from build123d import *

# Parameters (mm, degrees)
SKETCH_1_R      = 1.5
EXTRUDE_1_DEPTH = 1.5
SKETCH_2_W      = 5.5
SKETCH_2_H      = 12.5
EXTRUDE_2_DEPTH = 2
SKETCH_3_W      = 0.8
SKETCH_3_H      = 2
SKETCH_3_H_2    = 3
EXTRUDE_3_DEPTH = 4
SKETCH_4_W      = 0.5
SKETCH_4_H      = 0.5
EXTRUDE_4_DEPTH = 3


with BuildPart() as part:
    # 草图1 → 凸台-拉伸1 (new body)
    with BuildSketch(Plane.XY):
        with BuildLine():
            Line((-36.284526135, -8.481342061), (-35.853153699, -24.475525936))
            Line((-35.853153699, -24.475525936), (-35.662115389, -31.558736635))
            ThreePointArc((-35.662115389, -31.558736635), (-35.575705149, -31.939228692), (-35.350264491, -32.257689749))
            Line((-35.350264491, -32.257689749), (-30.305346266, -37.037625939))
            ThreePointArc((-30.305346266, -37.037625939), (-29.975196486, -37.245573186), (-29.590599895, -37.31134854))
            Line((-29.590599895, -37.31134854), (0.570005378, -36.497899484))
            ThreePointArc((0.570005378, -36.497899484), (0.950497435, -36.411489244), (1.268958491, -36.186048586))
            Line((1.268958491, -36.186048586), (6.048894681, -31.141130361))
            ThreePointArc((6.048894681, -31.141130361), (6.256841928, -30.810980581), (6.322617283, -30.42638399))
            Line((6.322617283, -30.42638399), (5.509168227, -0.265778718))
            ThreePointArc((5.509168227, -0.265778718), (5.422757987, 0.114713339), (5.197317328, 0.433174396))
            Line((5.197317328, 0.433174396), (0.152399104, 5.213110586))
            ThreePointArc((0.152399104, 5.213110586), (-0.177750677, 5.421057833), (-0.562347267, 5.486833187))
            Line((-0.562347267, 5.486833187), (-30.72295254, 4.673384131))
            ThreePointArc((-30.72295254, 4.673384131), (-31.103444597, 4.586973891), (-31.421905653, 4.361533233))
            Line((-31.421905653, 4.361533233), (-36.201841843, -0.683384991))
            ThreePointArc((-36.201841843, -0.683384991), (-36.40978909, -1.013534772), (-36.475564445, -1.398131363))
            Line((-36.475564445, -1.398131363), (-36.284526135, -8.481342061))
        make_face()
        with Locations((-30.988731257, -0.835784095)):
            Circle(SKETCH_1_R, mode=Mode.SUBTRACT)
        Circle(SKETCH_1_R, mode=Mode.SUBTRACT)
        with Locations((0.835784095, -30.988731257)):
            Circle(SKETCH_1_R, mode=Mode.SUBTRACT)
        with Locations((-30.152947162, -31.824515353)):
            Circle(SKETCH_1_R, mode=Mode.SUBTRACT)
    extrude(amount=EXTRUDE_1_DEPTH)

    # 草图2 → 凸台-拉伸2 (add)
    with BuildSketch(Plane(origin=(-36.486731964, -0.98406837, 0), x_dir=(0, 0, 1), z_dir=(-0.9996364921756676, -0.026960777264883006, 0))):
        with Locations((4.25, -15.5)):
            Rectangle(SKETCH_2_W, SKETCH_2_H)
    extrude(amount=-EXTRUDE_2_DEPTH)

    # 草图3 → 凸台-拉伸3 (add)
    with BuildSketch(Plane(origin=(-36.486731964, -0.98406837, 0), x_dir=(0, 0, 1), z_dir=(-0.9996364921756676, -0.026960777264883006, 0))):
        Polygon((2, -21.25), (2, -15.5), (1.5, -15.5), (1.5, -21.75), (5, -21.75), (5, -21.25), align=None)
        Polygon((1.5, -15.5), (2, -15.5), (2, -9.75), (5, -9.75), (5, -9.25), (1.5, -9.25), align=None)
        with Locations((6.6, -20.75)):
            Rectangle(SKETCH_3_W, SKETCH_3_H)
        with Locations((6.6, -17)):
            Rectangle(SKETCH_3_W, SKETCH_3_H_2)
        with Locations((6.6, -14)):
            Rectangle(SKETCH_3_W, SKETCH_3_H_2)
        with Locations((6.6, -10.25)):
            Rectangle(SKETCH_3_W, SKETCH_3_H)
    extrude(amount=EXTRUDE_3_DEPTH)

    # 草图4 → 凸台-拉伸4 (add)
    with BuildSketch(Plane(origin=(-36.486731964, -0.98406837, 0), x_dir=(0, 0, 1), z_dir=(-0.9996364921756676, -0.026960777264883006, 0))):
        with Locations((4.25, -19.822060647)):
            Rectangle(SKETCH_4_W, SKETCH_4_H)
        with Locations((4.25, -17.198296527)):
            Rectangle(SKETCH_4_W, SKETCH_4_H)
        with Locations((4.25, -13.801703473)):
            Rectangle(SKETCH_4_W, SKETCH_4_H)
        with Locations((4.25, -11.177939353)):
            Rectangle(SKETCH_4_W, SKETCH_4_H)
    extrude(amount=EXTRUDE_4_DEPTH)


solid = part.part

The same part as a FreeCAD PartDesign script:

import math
import FreeCAD as App
import Part
import Sketcher


def add_polygon(sketch, points):
    """Adds a closed chain of lines whose ends are joined by coincident constraints."""
    first, n = sketch.GeometryCount, len(points)
    for a, b in zip(points, points[1:] + points[:1]):
        sketch.addGeometry(Part.LineSegment(App.Vector(*a, 0), App.Vector(*b, 0)), False)
    for i in range(n):
        sketch.addConstraint(Sketcher.Constraint("Coincident", first + i, 2, first + (i + 1) % n, 1))

doc = App.newDocument("Part")
body = doc.addObject("PartDesign::Body", "Body")

# Sketch on XY plane
sketch1 = body.newObject("Sketcher::SketchObject", "Sketch")
sketch1.AttachmentSupport = (doc.getObject("XY_Plane"), [""])
sketch1.MapMode = "FlatFace"
sketch1.addGeometry(Part.LineSegment(App.Vector(-36.3, -8.5, 0), App.Vector(-35.9, -24.5, 0)), False)
sketch1.addGeometry(Part.LineSegment(App.Vector(-35.9, -24.5, 0), App.Vector(-35.7, -31.6, 0)), False)
sketch1.addGeometry(Part.ArcOfCircle(Part.Circle(App.Vector(-34.7, -31.5, 0), App.Vector(0, 0, 1), 1), math.radians(-178), math.radians(-133)), False)
sketch1.addGeometry(Part.LineSegment(App.Vector(-35.4, -32.3, 0), App.Vector(-30.3, -37, 0)), False)
sketch1.addGeometry(Part.ArcOfCircle(Part.Circle(App.Vector(-29.6, -36.3, 0), App.Vector(0, 0, 1), 1), math.radians(-133), math.radians(-88)), False)
sketch1.addGeometry(Part.LineSegment(App.Vector(-29.6, -37.3, 0), App.Vector(0.6, -36.5, 0)), False)
sketch1.addGeometry(Part.ArcOfCircle(Part.Circle(App.Vector(0.5, -35.5, 0), App.Vector(0, 0, 1), 1), math.radians(-88), math.radians(-43)), False)
sketch1.addGeometry(Part.LineSegment(App.Vector(1.3, -36.2, 0), App.Vector(6, -31.1, 0)), False)
sketch1.addGeometry(Part.ArcOfCircle(Part.Circle(App.Vector(5.3, -30.5, 0), App.Vector(0, 0, 1), 1), math.radians(-43), math.radians(2)), False)
sketch1.addGeometry(Part.LineSegment(App.Vector(6.3, -30.4, 0), App.Vector(5.5, -0.3, 0)), False)
sketch1.addGeometry(Part.ArcOfCircle(Part.Circle(App.Vector(4.5, -0.3, 0), App.Vector(0, 0, 1), 1), math.radians(2), math.radians(47)), False)
sketch1.addGeometry(Part.LineSegment(App.Vector(5.2, 0.4, 0), App.Vector(0.2, 5.2, 0)), False)
sketch1.addGeometry(Part.ArcOfCircle(Part.Circle(App.Vector(-0.5, 4.5, 0), App.Vector(0, 0, 1), 1), math.radians(47), math.radians(92)), False)
sketch1.addGeometry(Part.LineSegment(App.Vector(-0.6, 5.5, 0), App.Vector(-30.7, 4.7, 0)), False)
sketch1.addGeometry(Part.ArcOfCircle(Part.Circle(App.Vector(-30.7, 3.7, 0), App.Vector(0, 0, 1), 1), math.radians(92), math.radians(137)), False)
sketch1.addGeometry(Part.LineSegment(App.Vector(-31.4, 4.4, 0), App.Vector(-36.2, -0.7, 0)), False)
sketch1.addGeometry(Part.ArcOfCircle(Part.Circle(App.Vector(-35.5, -1.4, 0), App.Vector(0, 0, 1), 1), math.radians(137), math.radians(182)), False)
sketch1.addGeometry(Part.LineSegment(App.Vector(-36.5, -1.4, 0), App.Vector(-36.3, -8.5, 0)), False)
sketch1.addGeometry(Part.Circle(App.Vector(-30.2, -31.8, 0), App.Vector(0, 0, 1), 1.5), False)
sketch1.addGeometry(Part.Circle(App.Vector(0.8, -31, 0), App.Vector(0, 0, 1), 1.5), False)
sketch1.addGeometry(Part.Circle(App.Vector(-31, -0.8, 0), App.Vector(0, 0, 1), 1.5), False)
sketch1.addGeometry(Part.Circle(App.Vector(0, 0, 0), App.Vector(0, 0, 1), 1.5), False)
sketch1.addConstraint(Sketcher.Constraint("Coincident", 0, 2, 1, 1))
sketch1.addConstraint(Sketcher.Constraint("Tangent", 1, 2, 2, 1))
sketch1.addConstraint(Sketcher.Constraint("Tangent", 2, 2, 3, 1))
sketch1.addConstraint(Sketcher.Constraint("Tangent", 3, 2, 4, 1))
sketch1.addConstraint(Sketcher.Constraint("Tangent", 4, 2, 5, 1))
sketch1.addConstraint(Sketcher.Constraint("Tangent", 5, 2, 6, 1))
sketch1.addConstraint(Sketcher.Constraint("Tangent", 6, 2, 7, 1))
sketch1.addConstraint(Sketcher.Constraint("Tangent", 7, 2, 8, 1))
sketch1.addConstraint(Sketcher.Constraint("Tangent", 8, 2, 9, 1))
sketch1.addConstraint(Sketcher.Constraint("Tangent", 9, 2, 10, 1))
sketch1.addConstraint(Sketcher.Constraint("Tangent", 10, 2, 11, 1))
sketch1.addConstraint(Sketcher.Constraint("Tangent", 11, 2, 12, 1))
sketch1.addConstraint(Sketcher.Constraint("Tangent", 12, 2, 13, 1))
sketch1.addConstraint(Sketcher.Constraint("Tangent", 13, 2, 14, 1))
sketch1.addConstraint(Sketcher.Constraint("Tangent", 14, 2, 15, 1))
sketch1.addConstraint(Sketcher.Constraint("Tangent", 15, 2, 16, 1))
sketch1.addConstraint(Sketcher.Constraint("Tangent", 16, 2, 17, 1))
sketch1.addConstraint(Sketcher.Constraint("Coincident", 17, 2, 0, 1))
sketch1.addConstraint(Sketcher.Constraint("Coincident", 21, 3, -1, 1))
sketch1.addConstraint(Sketcher.Constraint("Equal", 2, 4))
sketch1.addConstraint(Sketcher.Constraint("Equal", 4, 6))
sketch1.addConstraint(Sketcher.Constraint("Equal", 6, 8))
sketch1.addConstraint(Sketcher.Constraint("Equal", 8, 10))
sketch1.addConstraint(Sketcher.Constraint("Equal", 10, 12))
sketch1.addConstraint(Sketcher.Constraint("Equal", 12, 14))
sketch1.addConstraint(Sketcher.Constraint("Equal", 14, 16))
sketch1.addConstraint(Sketcher.Constraint("Equal", 18, 19))
sketch1.addConstraint(Sketcher.Constraint("Equal", 19, 20))
sketch1.addConstraint(Sketcher.Constraint("Equal", 20, 21))
sketch1.addConstraint(Sketcher.Constraint("Parallel", 0, 1))
sketch1.addConstraint(Sketcher.Constraint("Perpendicular", 1, 5))
sketch1.addConstraint(Sketcher.Constraint("Perpendicular", 3, 7))
sketch1.addConstraint(Sketcher.Constraint("Perpendicular", 5, 9))
sketch1.addConstraint(Sketcher.Constraint("Perpendicular", 7, 11))
sketch1.addConstraint(Sketcher.Constraint("Perpendicular", 9, 13))
sketch1.addConstraint(Sketcher.Constraint("Perpendicular", 11, 15))
sketch1.addConstraint(Sketcher.Constraint("Perpendicular", 13, 17))
sketch1.addConstraint(Sketcher.Constraint("Equal", 3, 7))
sketch1.addConstraint(Sketcher.Constraint("Equal", 5, 9))
sketch1.addConstraint(Sketcher.Constraint("Equal", 7, 11))
sketch1.addConstraint(Sketcher.Constraint("Equal", 9, 13))
sketch1.addConstraint(Sketcher.Constraint("Equal", 1, 17))
sketch1.addConstraint(Sketcher.Constraint("Diameter", 18, 3.0))
sketch1.addConstraint(Sketcher.Constraint("Radius", 2, 1.0))
sketch1.addConstraint(Sketcher.Constraint("Distance", 0, 16.0))
sketch1.addConstraint(Sketcher.Constraint("DistanceX", 4, 2, -1, 1, 29.5906))
sketch1.addConstraint(Sketcher.Constraint("DistanceY", 5, 2, -1, 1, 36.497899))
sketch1.addConstraint(Sketcher.Constraint("DistanceX", -1, 1, 11, 2, 0.152399))
sketch1.addConstraint(Sketcher.Constraint("DistanceX", 3, 2, 18, 3, 0.152399))
sketch1.addConstraint(Sketcher.Constraint("DistanceY", 4, 2, 6, 2, 1.1253))
sketch1.addConstraint(Sketcher.Constraint("DistanceY", 7, 2, 19, 3, 0.152399))
sketch1.addConstraint(Sketcher.Constraint("DistanceX", 0, 2, 13, 2, 5.130201))
sketch1.addConstraint(Sketcher.Constraint("DistanceY", 20, 3, 15, 2, 0.152399))
sketch1.addConstraint(Sketcher.Constraint("DistanceX", 2, 3, -1, 1, 34.662479))
sketch1.addConstraint(Sketcher.Constraint("DistanceX", 20, 3, -1, 1, 30.988731))
sketch1.addConstraint(Sketcher.Constraint("DistanceY", 18, 3, 2, 3, 0.292739))
sketch1.addConstraint(Sketcher.Constraint("DistanceX", 6, 3, 19, 3, 0.292739))
pad1 = body.newObject("PartDesign::Pad", "Pad")
pad1.Profile = sketch1
pad1.Length = 1.5

# Sketch on an angled plane
sketch2 = body.newObject("Sketcher::SketchObject", "Sketch001")
sketch2.Placement = App.Placement(App.Vector(-36.486732, -0.984068, 0), App.Rotation(App.Vector(0, 0, 1), App.Vector(-0.026960777, 0.999636492, 0), App.Vector(-0.999636492, -0.026960777, 0), "ZXY"))
add_polygon(sketch2, [(2, -9), (2, -22), (7, -22), (7, -9)])  # lines 0-3
sketch2.addConstraint(Sketcher.Constraint("Vertical", 0))
sketch2.addConstraint(Sketcher.Constraint("Horizontal", 1))
sketch2.addConstraint(Sketcher.Constraint("Vertical", 2))
sketch2.addConstraint(Sketcher.Constraint("Horizontal", 3))
sketch2.addConstraint(Sketcher.Constraint("DistanceX", 1, 1, 1, 2, 5.5))
sketch2.addConstraint(Sketcher.Constraint("DistanceY", 0, 2, 0, 1, 12.5))
sketch2.addConstraint(Sketcher.Constraint("DistanceX", -1, 1, 1, 2, 7.0))
sketch2.addConstraint(Sketcher.Constraint("DistanceY", 0, 2, -1, 1, 21.75))
pad2 = body.newObject("PartDesign::Pad", "Pad001")
pad2.Profile = sketch2
pad2.Length = 2
pad2.Reversed = True

# Sketch on an angled plane
sketch3 = body.newObject("Sketcher::SketchObject", "Sketch002")
sketch3.Placement = App.Placement(App.Vector(-36.486732, -0.984068, 0), App.Rotation(App.Vector(0, 0, 1), App.Vector(-0.026960777, 0.999636492, 0), App.Vector(-0.999636492, -0.026960777, 0), "ZXY"))
add_polygon(sketch3, [(2, -21.25), (2, -9.75), (5, -9.75), (5, -9.25), (1.5, -9.25), (1.5, -21.75), (5, -21.75), (5, -21.25)])  # lines 0-7
add_polygon(sketch3, [(6.2, -19.75), (6.2, -21.75), (7, -21.75), (7, -19.75)])  # lines 8-11
add_polygon(sketch3, [(6.2, -18.5), (7, -18.5), (7, -12.5), (6.2, -12.5)])  # lines 12-15
add_polygon(sketch3, [(6.2, -9.25), (6.2, -11.25), (7, -11.25), (7, -9.25)])  # lines 16-19
sketch3.addConstraint(Sketcher.Constraint("Vertical", 0))
sketch3.addConstraint(Sketcher.Constraint("Horizontal", 1))
sketch3.addConstraint(Sketcher.Constraint("Vertical", 2))
sketch3.addConstraint(Sketcher.Constraint("Horizontal", 3))
sketch3.addConstraint(Sketcher.Constraint("Vertical", 4))
sketch3.addConstraint(Sketcher.Constraint("Horizontal", 5))
sketch3.addConstraint(Sketcher.Constraint("Vertical", 6))
sketch3.addConstraint(Sketcher.Constraint("Horizontal", 7))
sketch3.addConstraint(Sketcher.Constraint("Vertical", 8))
sketch3.addConstraint(Sketcher.Constraint("Horizontal", 9))
sketch3.addConstraint(Sketcher.Constraint("Vertical", 10))
sketch3.addConstraint(Sketcher.Constraint("Horizontal", 11))
sketch3.addConstraint(Sketcher.Constraint("Horizontal", 12))
sketch3.addConstraint(Sketcher.Constraint("Vertical", 13))
sketch3.addConstraint(Sketcher.Constraint("Horizontal", 14))
sketch3.addConstraint(Sketcher.Constraint("Vertical", 15))
sketch3.addConstraint(Sketcher.Constraint("Vertical", 16))
sketch3.addConstraint(Sketcher.Constraint("Horizontal", 17))
sketch3.addConstraint(Sketcher.Constraint("Vertical", 18))
sketch3.addConstraint(Sketcher.Constraint("Horizontal", 19))
sketch3.addConstraint(Sketcher.Constraint("Horizontal", 5, 2, 8, 2))
sketch3.addConstraint(Sketcher.Constraint("Horizontal", 3, 2, 18, 2))
sketch3.addConstraint(Sketcher.Constraint("Vertical", 2, 2, 5, 2))
sketch3.addConstraint(Sketcher.Constraint("Vertical", 10, 2, 12, 2))
sketch3.addConstraint(Sketcher.Constraint("Vertical", 11, 2, 14, 2))
sketch3.addConstraint(Sketcher.Constraint("Vertical", 15, 2, 16, 2))
sketch3.addConstraint(Sketcher.Constraint("Vertical", 13, 2, 17, 2))
sketch3.addConstraint(Sketcher.Constraint("Equal", 2, 6))
sketch3.addConstraint(Sketcher.Constraint("Equal", 10, 16))
sketch3.addConstraint(Sketcher.Constraint("DistanceX", 1, 1, 1, 2, 3.0))
sketch3.addConstraint(Sketcher.Constraint("DistanceY", 8, 2, 8, 1, 2.0))
sketch3.addConstraint(Sketcher.Constraint("DistanceY", 13, 1, 13, 2, 6.0))
sketch3.addConstraint(Sketcher.Constraint("DistanceX", 3, 2, 3, 1, 3.5))
sketch3.addConstraint(Sketcher.Constraint("DistanceX", 9, 1, 9, 2, 0.8))
sketch3.addConstraint(Sketcher.Constraint("DistanceY", 0, 1, 0, 2, 11.5))
sketch3.addConstraint(Sketcher.Constraint("DistanceY", 2, 1, 2, 2, 0.5))
sketch3.addConstraint(Sketcher.Constraint("DistanceX", -1, 1, 0, 2, 2.0))
sketch3.addConstraint(Sketcher.Constraint("DistanceX", -1, 1, 9, 2, 7.0))
sketch3.addConstraint(Sketcher.Constraint("DistanceY", 12, 2, -1, 1, 18.5))
sketch3.addConstraint(Sketcher.Constraint("DistanceY", 0, 2, -1, 1, 9.75))
pad3 = body.newObject("PartDesign::Pad", "Pad002")
pad3.Profile = sketch3
pad3.Length = 4

# Sketch on an angled plane
sketch4 = body.newObject("Sketcher::SketchObject", "Sketch003")
sketch4.Placement = App.Placement(App.Vector(-36.486732, -0.984068, 0), App.Rotation(App.Vector(0, 0, 1), App.Vector(-0.026960777, 0.999636492, 0), App.Vector(-0.999636492, -0.026960777, 0), "ZXY"))
add_polygon(sketch4, [(4, -19.6), (4, -20.1), (4.5, -20.1), (4.5, -19.6)])  # lines 0-3
add_polygon(sketch4, [(4, -16.9), (4, -17.4), (4.5, -17.4), (4.5, -16.9)])  # lines 4-7
add_polygon(sketch4, [(4, -13.6), (4, -14.1), (4.5, -14.1), (4.5, -13.6)])  # lines 8-11
add_polygon(sketch4, [(4, -10.9), (4, -11.4), (4.5, -11.4), (4.5, -10.9)])  # lines 12-15
sketch4.addConstraint(Sketcher.Constraint("Vertical", 0))
sketch4.addConstraint(Sketcher.Constraint("Horizontal", 1))
sketch4.addConstraint(Sketcher.Constraint("Vertical", 2))
sketch4.addConstraint(Sketcher.Constraint("Horizontal", 3))
sketch4.addConstraint(Sketcher.Constraint("Vertical", 4))
sketch4.addConstraint(Sketcher.Constraint("Horizontal", 5))
sketch4.addConstraint(Sketcher.Constraint("Vertical", 6))
sketch4.addConstraint(Sketcher.Constraint("Horizontal", 7))
sketch4.addConstraint(Sketcher.Constraint("Vertical", 8))
sketch4.addConstraint(Sketcher.Constraint("Horizontal", 9))
sketch4.addConstraint(Sketcher.Constraint("Vertical", 10))
sketch4.addConstraint(Sketcher.Constraint("Horizontal", 11))
sketch4.addConstraint(Sketcher.Constraint("Vertical", 12))
sketch4.addConstraint(Sketcher.Constraint("Horizontal", 13))
sketch4.addConstraint(Sketcher.Constraint("Vertical", 14))
sketch4.addConstraint(Sketcher.Constraint("Horizontal", 15))
sketch4.addConstraint(Sketcher.Constraint("Vertical", 3, 2, 4, 2))
sketch4.addConstraint(Sketcher.Constraint("Vertical", 2, 2, 5, 2))
sketch4.addConstraint(Sketcher.Constraint("Vertical", 7, 2, 8, 2))
sketch4.addConstraint(Sketcher.Constraint("Vertical", 6, 2, 9, 2))
sketch4.addConstraint(Sketcher.Constraint("Vertical", 11, 2, 12, 2))
sketch4.addConstraint(Sketcher.Constraint("Vertical", 10, 2, 13, 2))
sketch4.addConstraint(Sketcher.Constraint("Equal", 15, 0))
sketch4.addConstraint(Sketcher.Constraint("Equal", 2, 4))
sketch4.addConstraint(Sketcher.Constraint("Equal", 6, 8))
sketch4.addConstraint(Sketcher.Constraint("Equal", 10, 12))
sketch4.addConstraint(Sketcher.Constraint("DistanceX", 1, 1, 1, 2, 0.5))
sketch4.addConstraint(Sketcher.Constraint("DistanceX", -1, 1, 0, 2, 4.0))
sketch4.addConstraint(Sketcher.Constraint("DistanceY", 0, 2, -1, 1, 20.072061))
sketch4.addConstraint(Sketcher.Constraint("DistanceY", 12, 2, -1, 1, 11.427939))
sketch4.addConstraint(Sketcher.Constraint("DistanceY", 4, 2, -1, 1, 17.448297))
sketch4.addConstraint(Sketcher.Constraint("DistanceY", 8, 2, -1, 1, 14.051703))
pad4 = body.newObject("PartDesign::Pad", "Pad003")
pad4.Profile = sketch4
pad4.Length = 3

doc.recompute()
